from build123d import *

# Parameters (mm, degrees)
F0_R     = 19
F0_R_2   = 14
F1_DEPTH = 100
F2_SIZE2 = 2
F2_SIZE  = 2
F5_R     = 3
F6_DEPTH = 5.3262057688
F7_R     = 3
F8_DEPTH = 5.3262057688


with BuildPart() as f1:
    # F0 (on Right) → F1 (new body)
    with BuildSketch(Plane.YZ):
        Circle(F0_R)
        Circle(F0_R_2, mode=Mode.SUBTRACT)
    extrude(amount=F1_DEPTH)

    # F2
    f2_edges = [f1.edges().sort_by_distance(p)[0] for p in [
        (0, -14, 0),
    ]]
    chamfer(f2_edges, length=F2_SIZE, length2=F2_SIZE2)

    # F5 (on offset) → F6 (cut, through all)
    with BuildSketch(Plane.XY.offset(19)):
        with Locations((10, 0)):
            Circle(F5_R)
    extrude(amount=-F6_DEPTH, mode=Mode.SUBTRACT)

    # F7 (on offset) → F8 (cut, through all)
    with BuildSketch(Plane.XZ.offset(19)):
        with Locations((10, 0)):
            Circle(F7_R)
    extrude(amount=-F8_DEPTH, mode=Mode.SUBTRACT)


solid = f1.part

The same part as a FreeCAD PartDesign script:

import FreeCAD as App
import Part
import Sketcher


def edges_at(feature, points):
    """Names of the edges that pass closest to the given points."""
    edges = feature.Shape.Edges
    near = lambda p: min(range(len(edges)), key=lambda i: edges[i].distToShape(Part.Vertex(*p))[0])
    return sorted({f"Edge{near(p) + 1}" for p in points})

doc = App.newDocument("Part")
body = doc.addObject("PartDesign::Body", "Body")

# Sketch on YZ plane
sketch1 = body.newObject("Sketcher::SketchObject", "Sketch")
sketch1.AttachmentSupport = (doc.getObject("YZ_Plane"), [""])
sketch1.MapMode = "FlatFace"
sketch1.addGeometry([
    Part.Circle(App.Vector(0, 0, 0), App.Vector(0, 0, 1), 19),
    Part.Circle(App.Vector(0, 0, 0), App.Vector(0, 0, 1), 14),
], False)
sketch1.addConstraint([
    Sketcher.Constraint("Coincident", 0, 3, -1, 1),
    Sketcher.Constraint("Coincident", 1, 3, -1, 1),
    Sketcher.Constraint("Diameter", 0, 38.0),
    Sketcher.Constraint("Diameter", 1, 28.0),
])
pad1 = body.newObject("PartDesign::Pad", "Pad")
pad1.Profile = sketch1
pad1.Length = 100
doc.recompute()

chamfer = body.newObject("PartDesign::Chamfer", "Chamfer")
chamfer.Base = (pad1, edges_at(pad1, [(0, -14, 0)]))
chamfer.ChamferType = "Two distances"
chamfer.Size = 2
chamfer.Size2 = 2

# Sketch on XY plane
sketch2 = body.newObject("Sketcher::SketchObject", "Sketch001")
sketch2.AttachmentSupport = (doc.getObject("XY_Plane"), [""])
sketch2.MapMode = "FlatFace"
sketch2.AttachmentOffset = App.Placement(App.Vector(0, 0, 19), App.Rotation())
sketch2.addGeometry(Part.Circle(App.Vector(10, 0, 0), App.Vector(0, 0, 1), 3), False)
sketch2.addConstraint([
    Sketcher.Constraint("PointOnObject", 0, 3, -1),
    Sketcher.Constraint("Diameter", 0, 6.0),
    Sketcher.Constraint("DistanceX", -1, 1, 0, 3, 10.0),
])
pocket1 = body.newObject("PartDesign::Pocket", "Pocket")
pocket1.Profile = sketch2
pocket1.Length = 5.326206

# Sketch on XZ plane
sketch3 = body.newObject("Sketcher::SketchObject", "Sketch002")
sketch3.AttachmentSupport = (doc.getObject("XZ_Plane"), [""])
sketch3.MapMode = "FlatFace"
sketch3.AttachmentOffset = App.Placement(App.Vector(0, 0, 19), App.Rotation())
sketch3.addGeometry(Part.Circle(App.Vector(10, 0, 0), App.Vector(0, 0, 1), 3), False)
sketch3.addConstraint([
    Sketcher.Constraint("PointOnObject", 0, 3, -1),
    Sketcher.Constraint("Diameter", 0, 6.0),
    Sketcher.Constraint("DistanceX", -1, 1, 0, 3, 10.0),
])
pocket2 = body.newObject("PartDesign::Pocket", "Pocket001")
pocket2.Profile = sketch3
pocket2.Length = 5.326206

doc.recompute()
